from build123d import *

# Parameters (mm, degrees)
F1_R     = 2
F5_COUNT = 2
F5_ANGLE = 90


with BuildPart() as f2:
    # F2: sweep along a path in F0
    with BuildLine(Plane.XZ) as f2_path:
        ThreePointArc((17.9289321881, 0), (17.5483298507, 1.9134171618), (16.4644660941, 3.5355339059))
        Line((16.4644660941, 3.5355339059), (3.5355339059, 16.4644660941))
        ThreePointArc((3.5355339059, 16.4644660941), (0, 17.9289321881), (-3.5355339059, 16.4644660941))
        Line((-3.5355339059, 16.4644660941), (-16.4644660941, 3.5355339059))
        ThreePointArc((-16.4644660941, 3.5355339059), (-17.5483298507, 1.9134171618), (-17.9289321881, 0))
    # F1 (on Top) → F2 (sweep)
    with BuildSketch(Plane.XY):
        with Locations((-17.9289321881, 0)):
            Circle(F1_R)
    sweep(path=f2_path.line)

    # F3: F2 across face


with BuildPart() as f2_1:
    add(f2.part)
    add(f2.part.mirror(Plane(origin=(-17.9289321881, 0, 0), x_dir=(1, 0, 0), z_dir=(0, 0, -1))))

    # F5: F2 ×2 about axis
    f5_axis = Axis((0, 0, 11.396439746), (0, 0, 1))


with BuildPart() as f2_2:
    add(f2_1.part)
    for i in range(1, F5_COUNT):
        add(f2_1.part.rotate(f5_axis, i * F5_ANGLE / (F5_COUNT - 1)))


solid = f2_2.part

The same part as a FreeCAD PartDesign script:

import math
import FreeCAD as App
import Part
import Sketcher
from FreeCAD import Vector

doc = App.newDocument("Part")
body = doc.addObject("PartDesign::Body", "Body")

# Sketch on XY plane
sketch1 = doc.addObject("Sketcher::SketchObject", "Sketch")
body.addObject(sketch1)
sketch1.AttachmentSupport = (doc.XY_Plane, [""])
sketch1.MapMode = "FlatFace"
sketch1.addGeometry(Part.Circle(Vector(-17.9, 0, 0), Vector(0, 0, 1), 2), False)
sketch1.addConstraint(Sketcher.Constraint("PointOnObject", 0, 3, -1))
sketch1.addConstraint(Sketcher.Constraint("Diameter", 0, 4.0))
sketch1.addConstraint(Sketcher.Constraint("DistanceX", 0, 3, -1, 1, 17.928932))

# Sketch on XZ plane
sketch2 = doc.addObject("Sketcher::SketchObject", "Sketch001")
body.addObject(sketch2)
sketch2.AttachmentSupport = (doc.XZ_Plane, [""])
sketch2.MapMode = "FlatFace"
sketch2.addGeometry(Part.ArcOfCircle(Part.Circle(Vector(12.9, 0, 0), Vector(0, 0, 1), 5), math.radians(0), math.radians(45)), False)
sketch2.addGeometry(Part.LineSegment(Vector(16.5, 3.5, 0), Vector(3.5, 16.5, 0)), False)
sketch2.addGeometry(Part.ArcOfCircle(Part.Circle(Vector(0, 12.9, 0), Vector(0, 0, 1), 5), math.radians(45), math.radians(135)), False)
sketch2.addGeometry(Part.LineSegment(Vector(-3.5, 16.5, 0), Vector(-16.5, 3.5, 0)), False)
sketch2.addGeometry(Part.ArcOfCircle(Part.Circle(Vector(-12.9, 0, 0), Vector(0, 0, 1), 5), math.radians(135), math.radians(180)), False)
sketch2.addConstraint(Sketcher.Constraint("Tangent", 0, 2, 1, 1))
sketch2.addConstraint(Sketcher.Constraint("Tangent", 1, 2, 2, 1))
sketch2.addConstraint(Sketcher.Constraint("Tangent", 2, 2, 3, 1))
sketch2.addConstraint(Sketcher.Constraint("Tangent", 3, 2, 4, 1))
sketch2.addConstraint(Sketcher.Constraint("Equal", 0, 2))
sketch2.addConstraint(Sketcher.Constraint("Equal", 2, 4))
sketch2.addConstraint(Sketcher.Constraint("Symmetric", 0, 3, 4, 3, -1, 1))
sketch2.addConstraint(Sketcher.Constraint("Symmetric", 1, 2, 2, 2, -2))
sketch2.addConstraint(Sketcher.Constraint("PointOnObject", 0, 1, -1))
sketch2.addConstraint(Sketcher.Constraint("PointOnObject", 4, 2, -1))
sketch2.addConstraint(Sketcher.Constraint("Perpendicular", 1, 3))
sketch2.addConstraint(Sketcher.Constraint("Radius", 0, 5.0))
sketch2.addConstraint(Sketcher.Constraint("DistanceX", 2, 2, 0, 2, 20.0))
doc.recompute()

additivepipe = doc.addObject("PartDesign::AdditivePipe", "AdditivePipe")
body.addObject(additivepipe)
additivepipe.Profile = sketch1
additivepipe.Spine = (sketch2, ["Edge1", "Edge2", "Edge3", "Edge4", "Edge5"])
body2 = doc.addObject("PartDesign::Body", "Body001")
doc.recompute()

body2.BaseFeature = body
doc.recompute()

mirroring = doc.addObject("Part::Mirroring", "Mirroring")
mirroring.Source = body
mirroring.Base = Vector(-17.928932, 0, 0)
mirroring.Normal = Vector(0, 0, -1)
body3 = doc.addObject("PartDesign::Body", "Body002")
body3.BaseFeature = mirroring
boolean = doc.addObject("PartDesign::Boolean", "Boolean")
body2.addObject(boolean)
boolean.Type = "Fuse"
boolean.addObjects([body3])
doc.recompute()
body4 = doc.addObject("PartDesign::Body", "Body003")
doc.recompute()

body4.BaseFeature = body2
doc.recompute()

body2.Placement = App.Placement(Vector(0, 0, 0), App.Rotation(Vector(0, 0, 1), 90))
boolean2 = doc.addObject("PartDesign::Boolean", "Boolean001")
body4.addObject(boolean2)
boolean2.Type = "Fuse"
boolean2.addObjects([body2])
mirroring.Visibility = False

doc.recompute()
